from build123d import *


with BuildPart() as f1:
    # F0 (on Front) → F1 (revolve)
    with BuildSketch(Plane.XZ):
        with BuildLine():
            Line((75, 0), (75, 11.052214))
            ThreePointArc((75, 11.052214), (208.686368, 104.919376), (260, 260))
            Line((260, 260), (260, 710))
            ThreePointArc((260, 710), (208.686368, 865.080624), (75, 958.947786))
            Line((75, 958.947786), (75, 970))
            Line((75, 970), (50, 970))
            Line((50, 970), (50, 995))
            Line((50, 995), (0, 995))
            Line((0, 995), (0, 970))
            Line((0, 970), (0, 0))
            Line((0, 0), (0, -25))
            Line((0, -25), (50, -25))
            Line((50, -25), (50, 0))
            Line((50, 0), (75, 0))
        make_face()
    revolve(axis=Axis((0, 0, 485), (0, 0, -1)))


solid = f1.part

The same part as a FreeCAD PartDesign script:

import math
import FreeCAD as App
import Part
import Sketcher
from FreeCAD import Vector
Q = App.Units.Quantity

doc = App.newDocument("Part")
body = doc.addObject("PartDesign::Body", "Body")

# Sketch on XZ plane
sketch1 = doc.addObject("Sketcher::SketchObject", "Sketch")
body.addObject(sketch1)
sketch1.AttachmentSupport = (doc.XZ_Plane, [""])
sketch1.MapMode = "FlatFace"
sketch1.addGeometry([
    Part.LineSegment(Vector(75, 0, 0), Vector(75, 11, 0)),  # 0
    Part.ArcOfCircle(Part.Circle(Vector(0, 260, 0), Vector(0, 0, 1), 260), math.radians(-73), math.radians(0)),  # 1
    Part.LineSegment(Vector(260, 260, 0), Vector(260, 710, 0)),  # 2
    Part.ArcOfCircle(Part.Circle(Vector(0, 710, 0), Vector(0, 0, 1), 260), math.radians(0), math.radians(73)),  # 3
    Part.LineSegment(Vector(75, 959, 0), Vector(75, 970, 0)),  # 4
    Part.LineSegment(Vector(75, 970, 0), Vector(50, 970, 0)),  # 5
    Part.LineSegment(Vector(50, 970, 0), Vector(50, 995, 0)),  # 6
    Part.LineSegment(Vector(50, 995, 0), Vector(0, 995, 0)),  # 7
    Part.LineSegment(Vector(0, 995, 0), Vector(0, -25, 0)),  # 8
    Part.LineSegment(Vector(0, -25, 0), Vector(50, -25, 0)),  # 9
    Part.LineSegment(Vector(50, -25, 0), Vector(50, 0, 0)),  # 10
    Part.LineSegment(Vector(50, 0, 0), Vector(75, 0, 0)),  # 11
], False)
sketch1.addConstraint([
    Sketcher.Constraint("Coincident", 0, 2, 1, 1),
    Sketcher.Constraint("Tangent", 1, 2, 2, 1),
    Sketcher.Constraint("Tangent", 2, 2, 3, 1),
    Sketcher.Constraint("Coincident", 3, 2, 4, 1),
    Sketcher.Constraint("Coincident", 4, 2, 5, 1),
    Sketcher.Constraint("Coincident", 5, 2, 6, 1),
    Sketcher.Constraint("Coincident", 6, 2, 7, 1),
    Sketcher.Constraint("Coincident", 7, 2, 8, 1),
    Sketcher.Constraint("Coincident", 8, 2, 9, 1),
    Sketcher.Constraint("Coincident", 9, 2, 10, 1),
    Sketcher.Constraint("Coincident", 10, 2, 11, 1),
    Sketcher.Constraint("Coincident", 11, 2, 0, 1),
    Sketcher.Constraint("Vertical", 0),
    Sketcher.Constraint("Vertical", 2),
    Sketcher.Constraint("Vertical", 4),
    Sketcher.Constraint("Horizontal", 5),
    Sketcher.Constraint("Vertical", 6),
    Sketcher.Constraint("Horizontal", 7),
    Sketcher.Constraint("Vertical", 8),
    Sketcher.Constraint("Horizontal", 9),
    Sketcher.Constraint("Vertical", 10),
    Sketcher.Constraint("Horizontal", 11),
    Sketcher.Constraint("Equal", 1, 3),
    Sketcher.Constraint("PointOnObject", 1, 3, -2),
    Sketcher.Constraint("PointOnObject", 7, 2, -2),
    Sketcher.Constraint("PointOnObject", 10, 2, -1),
    Sketcher.Constraint("Vertical", 0, 2, 3, 2),
    Sketcher.Constraint("Vertical", 6, 2, 9, 2),
    Sketcher.Constraint("Equal", 0, 4),
    Sketcher.Constraint("Equal", 11, 6),
    Sketcher.Constraint("Equal", 6, 10),
    Sketcher.Constraint("Radius", 1, Q("260 mm")),
    Sketcher.Constraint("DistanceX", 5, 2, 5, 1, Q("25 mm")),
    Sketcher.Constraint("DistanceX", 7, 2, 7, 1, Q("50 mm")),
    Sketcher.Constraint("DistanceY", 2, 1, 2, 2, Q("450 mm")),
    Sketcher.Constraint("DistanceY", 8, 2, 8, 1, Q("1020 mm")),
])
revolution = doc.addObject("PartDesign::Revolution", "Revolution")
body.addObject(revolution)
revolution.Profile = sketch1
revolution.ReferenceAxis = (sketch1, ["V_Axis"])
revolution.Angle = 360

doc.recompute()
